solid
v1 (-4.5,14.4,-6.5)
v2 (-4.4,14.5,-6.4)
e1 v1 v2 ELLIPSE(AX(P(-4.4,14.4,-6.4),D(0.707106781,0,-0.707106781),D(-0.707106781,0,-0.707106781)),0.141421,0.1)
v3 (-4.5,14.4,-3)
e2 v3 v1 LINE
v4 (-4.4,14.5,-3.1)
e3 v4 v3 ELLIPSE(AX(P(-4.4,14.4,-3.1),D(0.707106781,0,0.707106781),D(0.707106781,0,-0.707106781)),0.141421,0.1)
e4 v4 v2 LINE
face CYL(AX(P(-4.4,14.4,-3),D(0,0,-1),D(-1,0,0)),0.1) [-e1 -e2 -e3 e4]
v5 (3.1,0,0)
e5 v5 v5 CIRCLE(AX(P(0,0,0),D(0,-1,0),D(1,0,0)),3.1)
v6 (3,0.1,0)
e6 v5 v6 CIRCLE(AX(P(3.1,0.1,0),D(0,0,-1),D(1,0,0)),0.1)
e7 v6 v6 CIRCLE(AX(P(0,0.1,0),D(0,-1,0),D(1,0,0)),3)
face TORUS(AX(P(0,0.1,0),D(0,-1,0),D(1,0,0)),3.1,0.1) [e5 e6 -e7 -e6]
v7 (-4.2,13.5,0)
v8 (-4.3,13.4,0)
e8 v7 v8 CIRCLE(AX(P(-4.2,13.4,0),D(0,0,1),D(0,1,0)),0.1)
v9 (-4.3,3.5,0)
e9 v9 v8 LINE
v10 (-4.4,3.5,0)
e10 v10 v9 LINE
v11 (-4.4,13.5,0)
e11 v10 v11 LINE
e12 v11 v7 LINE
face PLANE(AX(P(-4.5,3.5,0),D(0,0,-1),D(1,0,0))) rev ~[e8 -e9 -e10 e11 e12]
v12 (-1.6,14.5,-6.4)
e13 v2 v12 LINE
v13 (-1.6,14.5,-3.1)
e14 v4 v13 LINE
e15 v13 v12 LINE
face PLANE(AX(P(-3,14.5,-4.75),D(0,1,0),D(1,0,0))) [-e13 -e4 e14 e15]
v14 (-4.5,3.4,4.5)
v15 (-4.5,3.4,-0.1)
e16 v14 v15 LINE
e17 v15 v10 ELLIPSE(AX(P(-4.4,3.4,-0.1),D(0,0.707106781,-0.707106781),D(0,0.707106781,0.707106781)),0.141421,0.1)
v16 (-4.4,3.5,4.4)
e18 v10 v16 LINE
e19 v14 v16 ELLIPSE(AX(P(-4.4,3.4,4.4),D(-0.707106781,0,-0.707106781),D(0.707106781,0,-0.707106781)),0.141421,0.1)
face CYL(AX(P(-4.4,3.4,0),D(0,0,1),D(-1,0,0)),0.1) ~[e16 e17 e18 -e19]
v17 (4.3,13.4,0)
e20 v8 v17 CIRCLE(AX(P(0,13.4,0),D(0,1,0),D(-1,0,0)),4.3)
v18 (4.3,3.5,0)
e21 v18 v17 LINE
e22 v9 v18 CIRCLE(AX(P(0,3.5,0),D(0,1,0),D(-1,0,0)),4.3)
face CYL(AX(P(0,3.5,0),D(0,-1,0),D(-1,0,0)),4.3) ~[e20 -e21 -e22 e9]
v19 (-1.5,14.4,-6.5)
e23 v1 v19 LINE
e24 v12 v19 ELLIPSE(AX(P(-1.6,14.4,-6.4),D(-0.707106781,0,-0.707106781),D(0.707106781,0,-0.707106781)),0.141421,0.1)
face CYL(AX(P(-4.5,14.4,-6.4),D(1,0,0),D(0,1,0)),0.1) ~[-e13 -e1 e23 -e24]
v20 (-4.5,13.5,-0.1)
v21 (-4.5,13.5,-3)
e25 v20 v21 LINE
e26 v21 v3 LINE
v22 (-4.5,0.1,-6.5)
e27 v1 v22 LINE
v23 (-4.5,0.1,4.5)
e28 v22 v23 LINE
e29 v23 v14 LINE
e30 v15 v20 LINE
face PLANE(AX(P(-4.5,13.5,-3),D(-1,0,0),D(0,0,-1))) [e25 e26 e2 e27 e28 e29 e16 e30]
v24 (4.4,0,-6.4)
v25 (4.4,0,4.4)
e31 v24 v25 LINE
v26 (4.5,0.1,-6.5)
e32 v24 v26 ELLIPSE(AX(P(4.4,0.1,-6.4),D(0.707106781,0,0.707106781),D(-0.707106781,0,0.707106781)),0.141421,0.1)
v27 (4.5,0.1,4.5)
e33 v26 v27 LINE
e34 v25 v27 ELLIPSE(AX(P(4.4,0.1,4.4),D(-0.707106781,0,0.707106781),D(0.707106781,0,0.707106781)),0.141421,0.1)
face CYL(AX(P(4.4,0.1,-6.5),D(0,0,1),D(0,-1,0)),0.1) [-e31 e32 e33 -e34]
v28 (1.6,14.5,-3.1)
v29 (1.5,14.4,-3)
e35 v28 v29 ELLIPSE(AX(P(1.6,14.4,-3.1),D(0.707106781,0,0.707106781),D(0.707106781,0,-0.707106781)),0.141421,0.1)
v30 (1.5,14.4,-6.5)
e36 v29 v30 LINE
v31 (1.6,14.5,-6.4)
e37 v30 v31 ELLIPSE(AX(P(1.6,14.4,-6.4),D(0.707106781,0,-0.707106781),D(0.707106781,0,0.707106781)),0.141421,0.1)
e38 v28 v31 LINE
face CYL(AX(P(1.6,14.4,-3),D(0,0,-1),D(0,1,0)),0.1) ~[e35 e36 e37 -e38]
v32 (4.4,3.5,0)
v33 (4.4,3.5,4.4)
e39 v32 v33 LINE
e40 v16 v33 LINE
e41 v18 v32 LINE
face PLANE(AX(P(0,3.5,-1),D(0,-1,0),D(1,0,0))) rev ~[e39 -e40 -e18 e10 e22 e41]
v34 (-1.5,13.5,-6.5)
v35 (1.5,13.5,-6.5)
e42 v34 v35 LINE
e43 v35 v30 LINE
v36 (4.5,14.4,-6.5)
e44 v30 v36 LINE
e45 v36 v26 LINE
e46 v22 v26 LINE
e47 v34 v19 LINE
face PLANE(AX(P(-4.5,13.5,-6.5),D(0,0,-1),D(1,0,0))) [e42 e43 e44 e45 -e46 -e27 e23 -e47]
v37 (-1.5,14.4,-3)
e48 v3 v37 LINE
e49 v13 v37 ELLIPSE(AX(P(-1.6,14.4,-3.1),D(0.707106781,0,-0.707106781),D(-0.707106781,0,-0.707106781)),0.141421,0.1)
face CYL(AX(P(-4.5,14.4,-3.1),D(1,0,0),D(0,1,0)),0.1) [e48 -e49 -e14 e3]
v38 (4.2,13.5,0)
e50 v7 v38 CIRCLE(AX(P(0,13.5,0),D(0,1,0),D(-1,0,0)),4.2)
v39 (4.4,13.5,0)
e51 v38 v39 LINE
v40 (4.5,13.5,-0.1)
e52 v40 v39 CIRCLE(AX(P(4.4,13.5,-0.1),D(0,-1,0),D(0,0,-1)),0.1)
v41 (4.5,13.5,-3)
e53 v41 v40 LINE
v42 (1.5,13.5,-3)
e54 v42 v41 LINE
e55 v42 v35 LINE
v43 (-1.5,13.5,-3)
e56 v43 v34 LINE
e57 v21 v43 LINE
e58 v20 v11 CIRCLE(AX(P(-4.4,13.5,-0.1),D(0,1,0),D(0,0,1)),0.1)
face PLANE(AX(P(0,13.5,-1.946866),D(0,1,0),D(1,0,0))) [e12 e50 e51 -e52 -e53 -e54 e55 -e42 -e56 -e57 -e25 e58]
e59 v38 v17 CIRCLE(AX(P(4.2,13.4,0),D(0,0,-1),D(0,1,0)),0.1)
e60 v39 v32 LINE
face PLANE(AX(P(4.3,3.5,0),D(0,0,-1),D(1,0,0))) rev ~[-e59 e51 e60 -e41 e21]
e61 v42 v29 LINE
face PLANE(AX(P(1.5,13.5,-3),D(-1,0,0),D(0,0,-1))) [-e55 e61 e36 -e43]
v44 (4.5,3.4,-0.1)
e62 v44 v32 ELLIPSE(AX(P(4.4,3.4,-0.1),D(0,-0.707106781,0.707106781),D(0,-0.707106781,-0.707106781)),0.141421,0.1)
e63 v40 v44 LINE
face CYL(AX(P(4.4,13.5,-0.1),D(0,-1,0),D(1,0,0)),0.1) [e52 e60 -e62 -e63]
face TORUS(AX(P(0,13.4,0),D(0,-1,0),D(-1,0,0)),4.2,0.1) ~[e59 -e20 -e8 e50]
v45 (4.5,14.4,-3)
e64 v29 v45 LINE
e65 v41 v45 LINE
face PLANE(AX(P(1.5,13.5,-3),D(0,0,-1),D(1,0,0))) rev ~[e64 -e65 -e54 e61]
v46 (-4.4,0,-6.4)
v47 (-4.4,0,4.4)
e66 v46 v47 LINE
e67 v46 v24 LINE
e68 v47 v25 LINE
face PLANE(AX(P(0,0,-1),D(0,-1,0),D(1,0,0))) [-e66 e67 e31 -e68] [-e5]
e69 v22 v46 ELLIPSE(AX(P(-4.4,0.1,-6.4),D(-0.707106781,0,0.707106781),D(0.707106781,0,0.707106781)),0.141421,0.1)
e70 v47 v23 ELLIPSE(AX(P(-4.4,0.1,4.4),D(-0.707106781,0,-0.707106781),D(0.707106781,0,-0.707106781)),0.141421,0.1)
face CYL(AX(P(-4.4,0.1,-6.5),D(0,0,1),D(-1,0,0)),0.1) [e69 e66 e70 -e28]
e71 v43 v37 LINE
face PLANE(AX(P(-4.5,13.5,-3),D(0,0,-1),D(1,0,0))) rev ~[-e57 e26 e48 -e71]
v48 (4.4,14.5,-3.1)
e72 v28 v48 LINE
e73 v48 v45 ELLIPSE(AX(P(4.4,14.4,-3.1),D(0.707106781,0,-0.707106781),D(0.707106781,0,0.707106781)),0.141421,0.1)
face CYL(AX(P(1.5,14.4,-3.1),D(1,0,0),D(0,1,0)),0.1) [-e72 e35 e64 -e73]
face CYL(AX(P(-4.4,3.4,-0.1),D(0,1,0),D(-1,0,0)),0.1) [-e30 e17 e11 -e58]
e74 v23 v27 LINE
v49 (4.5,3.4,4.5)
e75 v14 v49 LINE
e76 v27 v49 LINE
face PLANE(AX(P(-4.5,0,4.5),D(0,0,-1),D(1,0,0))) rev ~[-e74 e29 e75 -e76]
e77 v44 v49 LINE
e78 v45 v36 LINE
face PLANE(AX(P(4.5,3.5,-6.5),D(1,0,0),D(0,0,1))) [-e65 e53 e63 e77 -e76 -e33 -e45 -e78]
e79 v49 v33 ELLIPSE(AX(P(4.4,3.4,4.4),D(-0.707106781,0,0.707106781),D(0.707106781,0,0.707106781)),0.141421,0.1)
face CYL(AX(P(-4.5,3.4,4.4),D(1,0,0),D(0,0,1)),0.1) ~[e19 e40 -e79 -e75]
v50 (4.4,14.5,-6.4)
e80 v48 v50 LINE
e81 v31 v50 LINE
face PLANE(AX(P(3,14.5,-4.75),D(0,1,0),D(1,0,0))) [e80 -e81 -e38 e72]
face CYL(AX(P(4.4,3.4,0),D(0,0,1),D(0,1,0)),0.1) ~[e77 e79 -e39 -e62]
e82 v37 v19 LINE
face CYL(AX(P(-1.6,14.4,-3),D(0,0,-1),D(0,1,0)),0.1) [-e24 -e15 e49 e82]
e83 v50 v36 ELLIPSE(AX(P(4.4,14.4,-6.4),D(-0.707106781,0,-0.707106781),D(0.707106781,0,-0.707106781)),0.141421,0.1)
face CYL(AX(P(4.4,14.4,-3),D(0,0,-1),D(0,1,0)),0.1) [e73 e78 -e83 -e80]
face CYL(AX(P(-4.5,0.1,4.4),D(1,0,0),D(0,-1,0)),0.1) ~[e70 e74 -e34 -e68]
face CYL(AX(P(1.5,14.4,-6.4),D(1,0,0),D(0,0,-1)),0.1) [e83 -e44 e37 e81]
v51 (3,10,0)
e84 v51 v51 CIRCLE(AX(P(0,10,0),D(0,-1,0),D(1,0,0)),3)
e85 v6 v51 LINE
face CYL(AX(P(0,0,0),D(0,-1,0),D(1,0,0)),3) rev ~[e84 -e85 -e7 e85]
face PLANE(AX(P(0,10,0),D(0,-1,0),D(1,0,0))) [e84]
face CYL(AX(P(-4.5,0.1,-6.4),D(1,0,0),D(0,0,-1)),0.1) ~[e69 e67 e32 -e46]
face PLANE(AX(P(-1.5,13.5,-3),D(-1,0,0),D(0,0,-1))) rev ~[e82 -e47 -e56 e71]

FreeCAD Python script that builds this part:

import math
import FreeCAD as App
import Part
import Sketcher
Q = App.Units.Quantity


def edges_at(feature, points):
    """Names of the edges that pass closest to the given points."""
    edges = feature.Shape.Edges
    near = lambda p: min(range(len(edges)), key=lambda i: edges[i].distToShape(Part.Vertex(*p))[0])
    return sorted({f"Edge{near(p) + 1}" for p in points})

doc = App.newDocument("Part")
body = doc.addObject("PartDesign::Body", "Body")

# Sketch on XZ plane
sketch1 = body.newObject("Sketcher::SketchObject", "Sketch")
sketch1.AttachmentSupport = (doc.getObject("XZ_Plane"), [""])
sketch1.MapMode = "FlatFace"
sketch1.addGeometry([
    Part.LineSegment(App.Vector(-4.5, 4.5, 0), App.Vector(-4.5, -6.5, 0)),
    Part.LineSegment(App.Vector(-4.5, -6.5, 0), App.Vector(4.5, -6.5, 0)),
    Part.LineSegment(App.Vector(4.5, -6.5, 0), App.Vector(4.5, 4.5, 0)),
    Part.LineSegment(App.Vector(4.5, 4.5, 0), App.Vector(-4.5, 4.5, 0)),
], False)
sketch1.addConstraint([
    Sketcher.Constraint("Coincident", 0, 2, 1, 1),
    Sketcher.Constraint("Coincident", 1, 2, 2, 1),
    Sketcher.Constraint("Coincident", 2, 2, 3, 1),
    Sketcher.Constraint("Coincident", 3, 2, 0, 1),
    Sketcher.Constraint("Vertical", 0),
    Sketcher.Constraint("Horizontal", 1),
    Sketcher.Constraint("Vertical", 2),
    Sketcher.Constraint("Horizontal", 3),
    Sketcher.Constraint("DistanceX", 1, 1, 1, 2, Q("9 mm")),
    Sketcher.Constraint("DistanceY", 0, 2, 0, 1, Q("11 mm")),
    Sketcher.Constraint("DistanceX", 0, 2, -1, 1, Q("4.5 mm")),
    Sketcher.Constraint("DistanceY", 0, 2, -1, 1, Q("6.5 mm")),
])
pad1 = body.newObject("PartDesign::Pad", "Pad")
pad1.Profile = sketch1
pad1.Length = 3.5
pad1.Reversed = True

# Sketch on XZ plane
sketch2 = body.newObject("Sketcher::SketchObject", "Sketch001")
sketch2.AttachmentSupport = (doc.getObject("XZ_Plane"), [""])
sketch2.MapMode = "FlatFace"
sketch2.AttachmentOffset = App.Placement(App.Vector(0, 0, -3.5), App.Rotation())
sketch2.addGeometry([
    Part.ArcOfCircle(Part.Circle(App.Vector(0, 0, 0), App.Vector(0, 0, 1), 4.3), math.radians(0), math.radians(180)),  # 0
    Part.LineSegment(App.Vector(4.3, 0, 0), App.Vector(4.5, 0, 0)),  # 1
    Part.LineSegment(App.Vector(4.5, 0, 0), App.Vector(4.5, -6.5, 0)),  # 2
    Part.LineSegment(App.Vector(4.5, -6.5, 0), App.Vector(-4.5, -6.5, 0)),  # 3
    Part.LineSegment(App.Vector(-4.5, -6.5, 0), App.Vector(-4.5, 0, 0)),  # 4
    Part.LineSegment(App.Vector(-4.5, 0, 0), App.Vector(-4.3, 0, 0)),  # 5
], False)
sketch2.addConstraint([
    Sketcher.Constraint("Coincident", 0, 1, 1, 1),
    Sketcher.Constraint("Coincident", 1, 2, 2, 1),
    Sketcher.Constraint("Coincident", 2, 2, 3, 1),
    Sketcher.Constraint("Coincident", 3, 2, 4, 1),
    Sketcher.Constraint("Coincident", 4, 2, 5, 1),
    Sketcher.Constraint("Coincident", 5, 2, 0, 2),
    Sketcher.Constraint("Horizontal", 1),
    Sketcher.Constraint("Vertical", 2),
    Sketcher.Constraint("Horizontal", 3),
    Sketcher.Constraint("Vertical", 4),
    Sketcher.Constraint("Horizontal", 5),
    Sketcher.Constraint("Coincident", 0, 3, -1, 1),
    Sketcher.Constraint("Symmetric", 1, 2, 4, 2, -1, 1),
    Sketcher.Constraint("PointOnObject", 0, 1, -1),
    Sketcher.Constraint("Radius", 0, Q("4.3 mm")),
    Sketcher.Constraint("DistanceX", 3, 2, 3, 1, Q("9 mm")),
    Sketcher.Constraint("DistanceY", 2, 2, 2, 1, Q("6.5 mm")),
])
pad2 = body.newObject("PartDesign::Pad", "Pad001")
pad2.Profile = sketch2
pad2.Length = 10
pad2.Reversed = True

# Sketch on XZ plane
sketch3 = body.newObject("Sketcher::SketchObject", "Sketch002")
sketch3.AttachmentSupport = (doc.getObject("XZ_Plane"), [""])
sketch3.MapMode = "FlatFace"
sketch3.AttachmentOffset = App.Placement(App.Vector(0, 0, -13.5), App.Rotation())
sketch3.addGeometry([
    Part.LineSegment(App.Vector(-4.5, -6.5, 0), App.Vector(-4.5, -3, 0)),  # 0
    Part.LineSegment(App.Vector(-4.5, -3, 0), App.Vector(-1.5, -3, 0)),  # 1
    Part.LineSegment(App.Vector(-1.5, -3, 0), App.Vector(-1.5, -6.5, 0)),  # 2
    Part.LineSegment(App.Vector(-1.5, -6.5, 0), App.Vector(-4.5, -6.5, 0)),  # 3
    Part.LineSegment(App.Vector(1.5, -6.5, 0), App.Vector(1.5, -3, 0)),  # 4
    Part.LineSegment(App.Vector(1.5, -3, 0), App.Vector(4.5, -3, 0)),  # 5
    Part.LineSegment(App.Vector(4.5, -3, 0), App.Vector(4.5, -6.5, 0)),  # 6
    Part.LineSegment(App.Vector(4.5, -6.5, 0), App.Vector(1.5, -6.5, 0)),  # 7
], False)
sketch3.addConstraint([
    Sketcher.Constraint("Coincident", 0, 2, 1, 1),
    Sketcher.Constraint("Coincident", 1, 2, 2, 1),
    Sketcher.Constraint("Coincident", 2, 2, 3, 1),
    Sketcher.Constraint("Coincident", 3, 2, 0, 1),
    Sketcher.Constraint("Coincident", 4, 2, 5, 1),
    Sketcher.Constraint("Coincident", 5, 2, 6, 1),
    Sketcher.Constraint("Coincident", 6, 2, 7, 1),
    Sketcher.Constraint("Coincident", 7, 2, 4, 1),
    Sketcher.Constraint("Vertical", 0),
    Sketcher.Constraint("Horizontal", 1),
    Sketcher.Constraint("Vertical", 2),
    Sketcher.Constraint("Horizontal", 3),
    Sketcher.Constraint("Vertical", 4),
    Sketcher.Constraint("Horizontal", 5),
    Sketcher.Constraint("Vertical", 6),
    Sketcher.Constraint("Horizontal", 7),
    Sketcher.Constraint("Symmetric", 1, 2, 4, 2, -2),
    Sketcher.Constraint("Symmetric", 3, 2, 6, 2, -2),
    Sketcher.Constraint("DistanceX", 1, 1, 1, 2, Q("3 mm")),
    Sketcher.Constraint("DistanceY", 0, 1, 0, 2, Q("3.5 mm")),
    Sketcher.Constraint("DistanceY", 0, 2, -1, 1, Q("3 mm")),
    Sketcher.Constraint("DistanceX", 1, 2, 4, 2, Q("3 mm")),
])
pad3 = body.newObject("PartDesign::Pad", "Pad002")
pad3.Profile = sketch3
pad3.Length = 1
pad3.Reversed = True

# Sketch on XZ plane
sketch4 = body.newObject("Sketcher::SketchObject", "Sketch003")
sketch4.AttachmentSupport = (doc.getObject("XZ_Plane"), [""])
sketch4.MapMode = "FlatFace"
sketch4.addGeometry(Part.Circle(App.Vector(0, 0, 0), App.Vector(0, 0, 1), 3), False)
sketch4.addConstraint([
    Sketcher.Constraint("Coincident", 0, 3, -1, 1),
    Sketcher.Constraint("Diameter", 0, Q("6 mm")),
])
pocket1 = body.newObject("PartDesign::Pocket", "Pocket")
pocket1.Profile = sketch4
pocket1.Length = 10
doc.recompute()

fillet = body.newObject("PartDesign::Fillet", "Fillet")
fillet.Base = (pocket1, edges_at(pocket1, [
    (0, 0, 4.5),
    (4.5, 0, -1),
    (0, 0, -6.5),
    (-4.5, 0, -1),
    (0, 3.5, 4.5),
    (4.5, 3.5, 2.25),
    (-4.5, 3.5, 2.25),
]))
fillet.Radius = 0.1
doc.recompute()

fillet2 = body.newObject("PartDesign::Fillet", "Fillet001")
fillet2.Base = (fillet, edges_at(fillet, [(0, 13.5, 4.3)]))
fillet2.Radius = 0.1
doc.recompute()

fillet3 = body.newObject("PartDesign::Fillet", "Fillet002")
fillet3.Base = (fillet2, edges_at(fillet2, [
    (3, 14.5, -3),
    (4.5, 14.5, -4.75),
    (3, 14.5, -6.5),
    (1.5, 14.5, -4.75),
    (-1.5, 14.5, -4.75),
    (-3, 14.5, -3),
    (-4.5, 14.5, -4.75),
    (-3, 14.5, -6.5),
]))
fillet3.Radius = 0.1
doc.recompute()

fillet4 = body.newObject("PartDesign::Fillet", "Fillet003")
fillet4.Base = (fillet3, edges_at(fillet3, [(-4.5, 8.45, 0), (4.5, 8.45, 0)]))
fillet4.Radius = 0.1
doc.recompute()

fillet5 = body.newObject("PartDesign::Fillet", "Fillet004")
fillet5.Base = (fillet4, edges_at(fillet4, [(-3, 0, 0)]))
fillet5.Radius = 0.1

doc.recompute()
